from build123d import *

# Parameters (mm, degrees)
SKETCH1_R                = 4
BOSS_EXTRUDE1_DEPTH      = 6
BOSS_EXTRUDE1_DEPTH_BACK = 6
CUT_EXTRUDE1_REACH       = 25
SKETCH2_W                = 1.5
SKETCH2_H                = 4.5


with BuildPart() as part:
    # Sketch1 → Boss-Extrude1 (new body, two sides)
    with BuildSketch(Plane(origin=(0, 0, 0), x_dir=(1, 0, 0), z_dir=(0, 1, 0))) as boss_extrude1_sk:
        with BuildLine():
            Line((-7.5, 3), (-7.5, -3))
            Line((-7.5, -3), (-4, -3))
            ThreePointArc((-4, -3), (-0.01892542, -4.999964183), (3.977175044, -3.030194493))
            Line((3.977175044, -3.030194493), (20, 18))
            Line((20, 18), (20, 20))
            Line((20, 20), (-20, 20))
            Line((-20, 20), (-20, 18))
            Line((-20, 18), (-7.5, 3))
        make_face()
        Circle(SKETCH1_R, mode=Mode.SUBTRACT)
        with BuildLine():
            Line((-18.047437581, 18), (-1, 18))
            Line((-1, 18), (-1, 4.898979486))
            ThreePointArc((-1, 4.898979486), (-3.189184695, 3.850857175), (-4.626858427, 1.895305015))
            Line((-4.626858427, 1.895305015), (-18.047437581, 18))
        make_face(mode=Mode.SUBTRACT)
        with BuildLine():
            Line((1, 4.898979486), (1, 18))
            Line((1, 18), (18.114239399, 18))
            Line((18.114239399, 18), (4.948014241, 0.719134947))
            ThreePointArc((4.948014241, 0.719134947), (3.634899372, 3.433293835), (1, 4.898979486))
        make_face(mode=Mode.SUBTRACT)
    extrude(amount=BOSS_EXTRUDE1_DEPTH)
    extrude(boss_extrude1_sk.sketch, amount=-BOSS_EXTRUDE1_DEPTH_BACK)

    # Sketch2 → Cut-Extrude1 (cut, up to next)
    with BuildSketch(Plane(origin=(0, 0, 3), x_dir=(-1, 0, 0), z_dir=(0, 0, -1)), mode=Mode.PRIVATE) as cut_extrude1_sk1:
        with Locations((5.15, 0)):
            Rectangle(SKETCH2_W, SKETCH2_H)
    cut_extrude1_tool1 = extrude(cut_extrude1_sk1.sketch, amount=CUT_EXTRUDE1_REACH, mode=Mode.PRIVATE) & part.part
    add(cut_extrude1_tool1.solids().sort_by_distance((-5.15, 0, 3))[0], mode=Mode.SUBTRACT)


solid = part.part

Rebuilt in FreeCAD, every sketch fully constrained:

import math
import FreeCAD as App
import Part
import Sketcher

V = App.Vector
Q = App.Units.Quantity


def add_polygon(sketch, points):
    """Adds a closed chain of lines whose ends are joined by coincident constraints."""
    first, n = sketch.GeometryCount, len(points)
    for a, b in zip(points, points[1:] + points[:1]):
        sketch.addGeometry(Part.LineSegment(App.Vector(*a, 0), App.Vector(*b, 0)), False)
    for i in range(n):
        sketch.addConstraint(Sketcher.Constraint("Coincident", first + i, 2, first + (i + 1) % n, 1))

doc = App.newDocument("Part")
body = doc.addObject("PartDesign::Body", "Body")

sketch1 = doc.addObject("Sketcher::SketchObject", "Sketch")
body.addObject(sketch1)
sketch1.AttachmentSupport = (doc.XZ_Plane, [""])
sketch1.MapMode = "FlatFace"
sketch1.addGeometry([
    Part.LineSegment(V(-7.5, -3, 0), V(-7.5, 3, 0)),
    Part.LineSegment(V(-7.5, 3, 0), V(-4, 3, 0)),
    Part.ArcOfCircle(Part.Circle(V(0, 0, 0), V(0, 0, 1), 5), math.radians(37), math.radians(143)),
    Part.LineSegment(V(4, 3, 0), V(20, -18, 0)),
    Part.LineSegment(V(20, -18, 0), V(20, -20, 0)),
    Part.LineSegment(V(20, -20, 0), V(-20, -20, 0)),
    Part.LineSegment(V(-20, -20, 0), V(-20, -18, 0)),
    Part.LineSegment(V(-20, -18, 0), V(-7.5, -3, 0)),
    Part.Circle(V(0, 0, 0), V(0, 0, 1), 4),
    Part.LineSegment(V(-4.6, -1.9, 0), V(-18, -18, 0)),
    Part.LineSegment(V(-18, -18, 0), V(-1, -18, 0)),
    Part.LineSegment(V(-1, -18, 0), V(-1, -4.9, 0)),
    Part.ArcOfCircle(Part.Circle(V(0, 0, 0), V(0, 0, 1), 5), math.radians(-158), math.radians(-102)),
    Part.ArcOfCircle(Part.Circle(V(0, 0, 0), V(0, 0, 1), 5), math.radians(-78), math.radians(-8)),
    Part.LineSegment(V(1, -4.9, 0), V(1, -18, 0)),
    Part.LineSegment(V(1, -18, 0), V(18.1, -18, 0)),
    Part.LineSegment(V(18.1, -18, 0), V(4.9, -0.7, 0)),
], False)
sketch1.addConstraint([
    Sketcher.Constraint("Coincident", 0, 2, 1, 1),
    Sketcher.Constraint("Coincident", 1, 2, 2, 2),
    Sketcher.Constraint("Tangent", 2, 1, 3, 1),
    Sketcher.Constraint("Coincident", 3, 2, 4, 1),
    Sketcher.Constraint("Coincident", 4, 2, 5, 1),
    Sketcher.Constraint("Coincident", 5, 2, 6, 1),
    Sketcher.Constraint("Coincident", 6, 2, 7, 1),
    Sketcher.Constraint("Coincident", 7, 2, 0, 1),
    Sketcher.Constraint("Coincident", 9, 2, 10, 1),
    Sketcher.Constraint("Coincident", 10, 2, 11, 1),
    Sketcher.Constraint("Coincident", 11, 2, 12, 2),
    Sketcher.Constraint("Coincident", 12, 1, 9, 1),
    Sketcher.Constraint("Coincident", 13, 1, 14, 1),
    Sketcher.Constraint("Coincident", 14, 2, 15, 1),
    Sketcher.Constraint("Coincident", 15, 2, 16, 1),
    Sketcher.Constraint("Coincident", 16, 2, 13, 2),
    Sketcher.Constraint("Vertical", 0),
    Sketcher.Constraint("Horizontal", 1),
    Sketcher.Constraint("Vertical", 4),
    Sketcher.Constraint("Horizontal", 5),
    Sketcher.Constraint("Vertical", 6),
    Sketcher.Constraint("Horizontal", 10),
    Sketcher.Constraint("Vertical", 11),
    Sketcher.Constraint("Vertical", 14),
    Sketcher.Constraint("Horizontal", 15),
    Sketcher.Constraint("Coincident", 2, 3, -1, 1),
    Sketcher.Constraint("Coincident", 8, 3, -1, 1),
    Sketcher.Constraint("Coincident", 12, 3, -1, 1),
    Sketcher.Constraint("Coincident", 13, 3, -1, 1),
    Sketcher.Constraint("Equal", 2, 12),
    Sketcher.Constraint("Equal", 12, 13),
    Sketcher.Constraint("Symmetric", 3, 2, 6, 2, -2),
    Sketcher.Constraint("Symmetric", 10, 2, 14, 2, -2),
    Sketcher.Constraint("Parallel", 7, 9),
    Sketcher.Constraint("Parallel", 3, 16),
    Sketcher.Constraint("Horizontal", 6, 2, 9, 2),
    Sketcher.Constraint("Diameter", 8, Q("8 mm")),
    Sketcher.Constraint("Radius", 2, Q("5 mm")),
    Sketcher.Constraint("DistanceX", 5, 2, 5, 1, Q("40 mm")),
    Sketcher.Constraint("DistanceY", 0, 1, 0, 2, Q("6 mm")),
    Sketcher.Constraint("DistanceY", 4, 2, 4, 1, Q("2 mm")),
    Sketcher.Constraint("DistanceX", 1, 1, 1, 2, Q("3.5 mm")),
    Sketcher.Constraint("DistanceY", -1, 1, 0, 2, Q("3 mm")),
    Sketcher.Constraint("DistanceY", 3, 2, -1, 1, Q("18 mm")),
    Sketcher.Constraint("DistanceX", 10, 2, -1, 1, Q("1 mm")),
    Sketcher.Constraint("DistanceX", 15, 1, 15, 2, Q("17.114239 mm")),
    Sketcher.Constraint("DistanceX", 10, 1, 10, 2, Q("17.047438 mm")),
])
pad1 = doc.addObject("PartDesign::Pad", "Pad")
body.addObject(pad1)
pad1.Profile = sketch1
pad1.Type = "TwoLengths"
pad1.Length = 6
pad1.Length2 = 6
pad1.Reversed = True

sketch2 = doc.addObject("Sketcher::SketchObject", "Sketch001")
body.addObject(sketch2)
sketch2.AttachmentSupport = (doc.XY_Plane, [""])
sketch2.MapMode = "FlatFace"
sketch2.AttachmentOffset = App.Placement(V(0, 0, 3), App.Rotation())
add_polygon(sketch2, [(-4.4, 2.2), (-4.4, -2.2), (-5.9, -2.2), (-5.9, 2.2)])
sketch2.addConstraint([
    Sketcher.Constraint("Vertical", 0),
    Sketcher.Constraint("Horizontal", 1),
    Sketcher.Constraint("Vertical", 2),
    Sketcher.Constraint("Horizontal", 3),
    Sketcher.Constraint("DistanceX", 1, 2, 1, 1, Q("1.5 mm")),
    Sketcher.Constraint("DistanceY", 0, 2, 0, 1, Q("4.5 mm")),
    Sketcher.Constraint("DistanceX", 0, 2, -1, 1, Q("4.4 mm")),
    Sketcher.Constraint("DistanceY", 0, 2, -1, 1, Q("2.25 mm")),
])
pocket1 = doc.addObject("PartDesign::Pocket", "Pocket")
body.addObject(pocket1)
pocket1.Profile = sketch2
pocket1.Length = 6.423075

doc.recompute()
